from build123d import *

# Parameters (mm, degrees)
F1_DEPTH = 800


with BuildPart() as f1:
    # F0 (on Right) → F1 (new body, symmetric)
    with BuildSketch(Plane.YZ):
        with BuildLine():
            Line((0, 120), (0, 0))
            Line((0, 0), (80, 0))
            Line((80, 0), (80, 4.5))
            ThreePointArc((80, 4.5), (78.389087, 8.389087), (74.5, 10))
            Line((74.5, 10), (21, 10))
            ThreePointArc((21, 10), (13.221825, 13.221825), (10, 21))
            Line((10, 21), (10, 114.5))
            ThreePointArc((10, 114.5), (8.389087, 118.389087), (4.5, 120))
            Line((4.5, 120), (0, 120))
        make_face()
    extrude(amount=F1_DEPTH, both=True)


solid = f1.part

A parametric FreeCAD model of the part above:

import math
import FreeCAD as App
import Part
import Sketcher

V = App.Vector
Q = App.Units.Quantity

doc = App.newDocument("Part")
body = doc.addObject("PartDesign::Body", "Body")

sketch1 = body.newObject("Sketcher::SketchObject", "Sketch")
sketch1.AttachmentSupport = (doc.getObject("YZ_Plane"), [""])
sketch1.MapMode = "FlatFace"
sketch1.addGeometry(Part.LineSegment(V(0, 120, 0), V(0, 0, 0)), False)
sketch1.addGeometry(Part.LineSegment(V(0, 0, 0), V(80, 0, 0)), False)
sketch1.addGeometry(Part.LineSegment(V(80, 0, 0), V(80, 4.5, 0)), False)
sketch1.addGeometry(Part.ArcOfCircle(Part.Circle(V(74.5, 4.5, 0), V(0, 0, 1), 5.5), math.radians(0), math.radians(90)), False)
sketch1.addGeometry(Part.LineSegment(V(74.5, 10, 0), V(21, 10, 0)), False)
sketch1.addGeometry(Part.ArcOfCircle(Part.Circle(V(21, 21, 0), V(0, 0, 1), 11), math.radians(180), math.radians(270)), False)
sketch1.addGeometry(Part.LineSegment(V(10, 21, 0), V(10, 114.5, 0)), False)
sketch1.addGeometry(Part.ArcOfCircle(Part.Circle(V(4.5, 114.5, 0), V(0, 0, 1), 5.5), math.radians(0), math.radians(90)), False)
sketch1.addGeometry(Part.LineSegment(V(4.5, 120, 0), V(0, 120, 0)), False)
sketch1.addConstraint(Sketcher.Constraint("Coincident", 0, 2, 1, 1))
sketch1.addConstraint(Sketcher.Constraint("Coincident", 1, 2, 2, 1))
sketch1.addConstraint(Sketcher.Constraint("Tangent", 2, 2, 3, 1))
sketch1.addConstraint(Sketcher.Constraint("Tangent", 3, 2, 4, 1))
sketch1.addConstraint(Sketcher.Constraint("Tangent", 4, 2, 5, 2))
sketch1.addConstraint(Sketcher.Constraint("Tangent", 5, 1, 6, 1))
sketch1.addConstraint(Sketcher.Constraint("Tangent", 6, 2, 7, 1))
sketch1.addConstraint(Sketcher.Constraint("Tangent", 7, 2, 8, 1))
sketch1.addConstraint(Sketcher.Constraint("Coincident", 8, 2, 0, 1))
sketch1.addConstraint(Sketcher.Constraint("Vertical", 0))
sketch1.addConstraint(Sketcher.Constraint("Horizontal", 1))
sketch1.addConstraint(Sketcher.Constraint("Vertical", 2))
sketch1.addConstraint(Sketcher.Constraint("Horizontal", 4))
sketch1.addConstraint(Sketcher.Constraint("Vertical", 6))
sketch1.addConstraint(Sketcher.Constraint("Horizontal", 8))
sketch1.addConstraint(Sketcher.Constraint("Coincident", 0, 2, -1, 1))
sketch1.addConstraint(Sketcher.Constraint("Equal", 3, 7))
sketch1.addConstraint(Sketcher.Constraint("Equal", 8, 2))
sketch1.addConstraint(Sketcher.Constraint("Radius", 5, Q("10.999999 mm")))
sketch1.addConstraint(Sketcher.Constraint("Radius", 3, Q("5.500001 mm")))
sketch1.addConstraint(Sketcher.Constraint("DistanceX", 1, 1, 1, 2, Q("80 mm")))
sketch1.addConstraint(Sketcher.Constraint("DistanceY", 0, 2, 0, 1, Q("120 mm")))
sketch1.addConstraint(Sketcher.Constraint("DistanceX", 4, 2, 4, 1, Q("53.5 mm")))
pad1 = body.newObject("PartDesign::Pad", "Pad")
pad1.Profile = sketch1
pad1.Length = 1600
pad1.Midplane = True

doc.recompute()
